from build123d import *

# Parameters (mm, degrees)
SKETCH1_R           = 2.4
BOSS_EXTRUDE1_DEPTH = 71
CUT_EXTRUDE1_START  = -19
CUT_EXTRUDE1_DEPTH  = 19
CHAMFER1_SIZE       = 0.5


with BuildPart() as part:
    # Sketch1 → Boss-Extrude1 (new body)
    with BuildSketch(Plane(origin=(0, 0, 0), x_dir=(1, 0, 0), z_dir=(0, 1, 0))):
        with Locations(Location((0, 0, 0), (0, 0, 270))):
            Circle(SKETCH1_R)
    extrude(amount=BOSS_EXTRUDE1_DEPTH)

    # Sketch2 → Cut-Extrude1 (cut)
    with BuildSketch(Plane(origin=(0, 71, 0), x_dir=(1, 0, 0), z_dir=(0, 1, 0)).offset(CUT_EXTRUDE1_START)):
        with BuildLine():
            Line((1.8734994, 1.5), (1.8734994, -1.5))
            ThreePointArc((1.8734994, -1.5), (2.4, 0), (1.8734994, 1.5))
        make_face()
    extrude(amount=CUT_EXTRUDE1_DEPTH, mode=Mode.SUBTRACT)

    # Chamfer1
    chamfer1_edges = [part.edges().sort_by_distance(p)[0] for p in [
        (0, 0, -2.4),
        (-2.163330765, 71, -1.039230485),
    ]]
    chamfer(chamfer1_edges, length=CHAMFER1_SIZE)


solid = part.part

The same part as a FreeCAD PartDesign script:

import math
import FreeCAD as App
import Part
import Sketcher


def edges_at(feature, points):
    """Names of the edges that pass closest to the given points."""
    edges = feature.Shape.Edges
    near = lambda p: min(range(len(edges)), key=lambda i: edges[i].distToShape(Part.Vertex(*p))[0])
    return sorted({f"Edge{near(p) + 1}" for p in points})

doc = App.newDocument("Part")
body = doc.addObject("PartDesign::Body", "Body")

# Sketch on XZ plane
sketch1 = body.newObject("Sketcher::SketchObject", "Sketch")
sketch1.AttachmentSupport = (doc.getObject("XZ_Plane"), [""])
sketch1.MapMode = "FlatFace"
sketch1.addGeometry(Part.Circle(App.Vector(0, 0, 0), App.Vector(0, 0, 1), 2.4), False)
sketch1.addConstraint(Sketcher.Constraint("Coincident", 0, 3, -1, 1))
sketch1.addConstraint(Sketcher.Constraint("Diameter", 0, 4.8))
pad1 = body.newObject("PartDesign::Pad", "Pad")
pad1.Profile = sketch1
pad1.Length = 71
pad1.Reversed = True

# Sketch on XZ plane
sketch2 = body.newObject("Sketcher::SketchObject", "Sketch001")
sketch2.AttachmentSupport = (doc.getObject("XZ_Plane"), [""])
sketch2.MapMode = "FlatFace"
sketch2.AttachmentOffset = App.Placement(App.Vector(0, 0, -52), App.Rotation())
sketch2.addGeometry(Part.LineSegment(App.Vector(1.9, -1.5, 0), App.Vector(1.9, 1.5, 0)), False)
sketch2.addGeometry(Part.ArcOfCircle(Part.Circle(App.Vector(0, 0, 0), App.Vector(0, 0, 1), 2.4), math.radians(-39), math.radians(39)), False)
sketch2.addConstraint(Sketcher.Constraint("Coincident", 0, 1, 1, 1))
sketch2.addConstraint(Sketcher.Constraint("Coincident", 1, 2, 0, 2))
sketch2.addConstraint(Sketcher.Constraint("Vertical", 0))
sketch2.addConstraint(Sketcher.Constraint("Coincident", 1, 3, -1, 1))
sketch2.addConstraint(Sketcher.Constraint("Radius", 1, 2.4))
sketch2.addConstraint(Sketcher.Constraint("DistanceY", 0, 1, 0, 2, 3.0))
pocket1 = body.newObject("PartDesign::Pocket", "Pocket")
pocket1.Profile = sketch2
pocket1.Length = 19
doc.recompute()

chamfer = body.newObject("PartDesign::Chamfer", "Chamfer")
chamfer.Base = (pocket1, edges_at(pocket1, [(0, 0, -2.4), (-2.163, 71, -1.039)]))
chamfer.Size = 0.5

doc.recompute()
